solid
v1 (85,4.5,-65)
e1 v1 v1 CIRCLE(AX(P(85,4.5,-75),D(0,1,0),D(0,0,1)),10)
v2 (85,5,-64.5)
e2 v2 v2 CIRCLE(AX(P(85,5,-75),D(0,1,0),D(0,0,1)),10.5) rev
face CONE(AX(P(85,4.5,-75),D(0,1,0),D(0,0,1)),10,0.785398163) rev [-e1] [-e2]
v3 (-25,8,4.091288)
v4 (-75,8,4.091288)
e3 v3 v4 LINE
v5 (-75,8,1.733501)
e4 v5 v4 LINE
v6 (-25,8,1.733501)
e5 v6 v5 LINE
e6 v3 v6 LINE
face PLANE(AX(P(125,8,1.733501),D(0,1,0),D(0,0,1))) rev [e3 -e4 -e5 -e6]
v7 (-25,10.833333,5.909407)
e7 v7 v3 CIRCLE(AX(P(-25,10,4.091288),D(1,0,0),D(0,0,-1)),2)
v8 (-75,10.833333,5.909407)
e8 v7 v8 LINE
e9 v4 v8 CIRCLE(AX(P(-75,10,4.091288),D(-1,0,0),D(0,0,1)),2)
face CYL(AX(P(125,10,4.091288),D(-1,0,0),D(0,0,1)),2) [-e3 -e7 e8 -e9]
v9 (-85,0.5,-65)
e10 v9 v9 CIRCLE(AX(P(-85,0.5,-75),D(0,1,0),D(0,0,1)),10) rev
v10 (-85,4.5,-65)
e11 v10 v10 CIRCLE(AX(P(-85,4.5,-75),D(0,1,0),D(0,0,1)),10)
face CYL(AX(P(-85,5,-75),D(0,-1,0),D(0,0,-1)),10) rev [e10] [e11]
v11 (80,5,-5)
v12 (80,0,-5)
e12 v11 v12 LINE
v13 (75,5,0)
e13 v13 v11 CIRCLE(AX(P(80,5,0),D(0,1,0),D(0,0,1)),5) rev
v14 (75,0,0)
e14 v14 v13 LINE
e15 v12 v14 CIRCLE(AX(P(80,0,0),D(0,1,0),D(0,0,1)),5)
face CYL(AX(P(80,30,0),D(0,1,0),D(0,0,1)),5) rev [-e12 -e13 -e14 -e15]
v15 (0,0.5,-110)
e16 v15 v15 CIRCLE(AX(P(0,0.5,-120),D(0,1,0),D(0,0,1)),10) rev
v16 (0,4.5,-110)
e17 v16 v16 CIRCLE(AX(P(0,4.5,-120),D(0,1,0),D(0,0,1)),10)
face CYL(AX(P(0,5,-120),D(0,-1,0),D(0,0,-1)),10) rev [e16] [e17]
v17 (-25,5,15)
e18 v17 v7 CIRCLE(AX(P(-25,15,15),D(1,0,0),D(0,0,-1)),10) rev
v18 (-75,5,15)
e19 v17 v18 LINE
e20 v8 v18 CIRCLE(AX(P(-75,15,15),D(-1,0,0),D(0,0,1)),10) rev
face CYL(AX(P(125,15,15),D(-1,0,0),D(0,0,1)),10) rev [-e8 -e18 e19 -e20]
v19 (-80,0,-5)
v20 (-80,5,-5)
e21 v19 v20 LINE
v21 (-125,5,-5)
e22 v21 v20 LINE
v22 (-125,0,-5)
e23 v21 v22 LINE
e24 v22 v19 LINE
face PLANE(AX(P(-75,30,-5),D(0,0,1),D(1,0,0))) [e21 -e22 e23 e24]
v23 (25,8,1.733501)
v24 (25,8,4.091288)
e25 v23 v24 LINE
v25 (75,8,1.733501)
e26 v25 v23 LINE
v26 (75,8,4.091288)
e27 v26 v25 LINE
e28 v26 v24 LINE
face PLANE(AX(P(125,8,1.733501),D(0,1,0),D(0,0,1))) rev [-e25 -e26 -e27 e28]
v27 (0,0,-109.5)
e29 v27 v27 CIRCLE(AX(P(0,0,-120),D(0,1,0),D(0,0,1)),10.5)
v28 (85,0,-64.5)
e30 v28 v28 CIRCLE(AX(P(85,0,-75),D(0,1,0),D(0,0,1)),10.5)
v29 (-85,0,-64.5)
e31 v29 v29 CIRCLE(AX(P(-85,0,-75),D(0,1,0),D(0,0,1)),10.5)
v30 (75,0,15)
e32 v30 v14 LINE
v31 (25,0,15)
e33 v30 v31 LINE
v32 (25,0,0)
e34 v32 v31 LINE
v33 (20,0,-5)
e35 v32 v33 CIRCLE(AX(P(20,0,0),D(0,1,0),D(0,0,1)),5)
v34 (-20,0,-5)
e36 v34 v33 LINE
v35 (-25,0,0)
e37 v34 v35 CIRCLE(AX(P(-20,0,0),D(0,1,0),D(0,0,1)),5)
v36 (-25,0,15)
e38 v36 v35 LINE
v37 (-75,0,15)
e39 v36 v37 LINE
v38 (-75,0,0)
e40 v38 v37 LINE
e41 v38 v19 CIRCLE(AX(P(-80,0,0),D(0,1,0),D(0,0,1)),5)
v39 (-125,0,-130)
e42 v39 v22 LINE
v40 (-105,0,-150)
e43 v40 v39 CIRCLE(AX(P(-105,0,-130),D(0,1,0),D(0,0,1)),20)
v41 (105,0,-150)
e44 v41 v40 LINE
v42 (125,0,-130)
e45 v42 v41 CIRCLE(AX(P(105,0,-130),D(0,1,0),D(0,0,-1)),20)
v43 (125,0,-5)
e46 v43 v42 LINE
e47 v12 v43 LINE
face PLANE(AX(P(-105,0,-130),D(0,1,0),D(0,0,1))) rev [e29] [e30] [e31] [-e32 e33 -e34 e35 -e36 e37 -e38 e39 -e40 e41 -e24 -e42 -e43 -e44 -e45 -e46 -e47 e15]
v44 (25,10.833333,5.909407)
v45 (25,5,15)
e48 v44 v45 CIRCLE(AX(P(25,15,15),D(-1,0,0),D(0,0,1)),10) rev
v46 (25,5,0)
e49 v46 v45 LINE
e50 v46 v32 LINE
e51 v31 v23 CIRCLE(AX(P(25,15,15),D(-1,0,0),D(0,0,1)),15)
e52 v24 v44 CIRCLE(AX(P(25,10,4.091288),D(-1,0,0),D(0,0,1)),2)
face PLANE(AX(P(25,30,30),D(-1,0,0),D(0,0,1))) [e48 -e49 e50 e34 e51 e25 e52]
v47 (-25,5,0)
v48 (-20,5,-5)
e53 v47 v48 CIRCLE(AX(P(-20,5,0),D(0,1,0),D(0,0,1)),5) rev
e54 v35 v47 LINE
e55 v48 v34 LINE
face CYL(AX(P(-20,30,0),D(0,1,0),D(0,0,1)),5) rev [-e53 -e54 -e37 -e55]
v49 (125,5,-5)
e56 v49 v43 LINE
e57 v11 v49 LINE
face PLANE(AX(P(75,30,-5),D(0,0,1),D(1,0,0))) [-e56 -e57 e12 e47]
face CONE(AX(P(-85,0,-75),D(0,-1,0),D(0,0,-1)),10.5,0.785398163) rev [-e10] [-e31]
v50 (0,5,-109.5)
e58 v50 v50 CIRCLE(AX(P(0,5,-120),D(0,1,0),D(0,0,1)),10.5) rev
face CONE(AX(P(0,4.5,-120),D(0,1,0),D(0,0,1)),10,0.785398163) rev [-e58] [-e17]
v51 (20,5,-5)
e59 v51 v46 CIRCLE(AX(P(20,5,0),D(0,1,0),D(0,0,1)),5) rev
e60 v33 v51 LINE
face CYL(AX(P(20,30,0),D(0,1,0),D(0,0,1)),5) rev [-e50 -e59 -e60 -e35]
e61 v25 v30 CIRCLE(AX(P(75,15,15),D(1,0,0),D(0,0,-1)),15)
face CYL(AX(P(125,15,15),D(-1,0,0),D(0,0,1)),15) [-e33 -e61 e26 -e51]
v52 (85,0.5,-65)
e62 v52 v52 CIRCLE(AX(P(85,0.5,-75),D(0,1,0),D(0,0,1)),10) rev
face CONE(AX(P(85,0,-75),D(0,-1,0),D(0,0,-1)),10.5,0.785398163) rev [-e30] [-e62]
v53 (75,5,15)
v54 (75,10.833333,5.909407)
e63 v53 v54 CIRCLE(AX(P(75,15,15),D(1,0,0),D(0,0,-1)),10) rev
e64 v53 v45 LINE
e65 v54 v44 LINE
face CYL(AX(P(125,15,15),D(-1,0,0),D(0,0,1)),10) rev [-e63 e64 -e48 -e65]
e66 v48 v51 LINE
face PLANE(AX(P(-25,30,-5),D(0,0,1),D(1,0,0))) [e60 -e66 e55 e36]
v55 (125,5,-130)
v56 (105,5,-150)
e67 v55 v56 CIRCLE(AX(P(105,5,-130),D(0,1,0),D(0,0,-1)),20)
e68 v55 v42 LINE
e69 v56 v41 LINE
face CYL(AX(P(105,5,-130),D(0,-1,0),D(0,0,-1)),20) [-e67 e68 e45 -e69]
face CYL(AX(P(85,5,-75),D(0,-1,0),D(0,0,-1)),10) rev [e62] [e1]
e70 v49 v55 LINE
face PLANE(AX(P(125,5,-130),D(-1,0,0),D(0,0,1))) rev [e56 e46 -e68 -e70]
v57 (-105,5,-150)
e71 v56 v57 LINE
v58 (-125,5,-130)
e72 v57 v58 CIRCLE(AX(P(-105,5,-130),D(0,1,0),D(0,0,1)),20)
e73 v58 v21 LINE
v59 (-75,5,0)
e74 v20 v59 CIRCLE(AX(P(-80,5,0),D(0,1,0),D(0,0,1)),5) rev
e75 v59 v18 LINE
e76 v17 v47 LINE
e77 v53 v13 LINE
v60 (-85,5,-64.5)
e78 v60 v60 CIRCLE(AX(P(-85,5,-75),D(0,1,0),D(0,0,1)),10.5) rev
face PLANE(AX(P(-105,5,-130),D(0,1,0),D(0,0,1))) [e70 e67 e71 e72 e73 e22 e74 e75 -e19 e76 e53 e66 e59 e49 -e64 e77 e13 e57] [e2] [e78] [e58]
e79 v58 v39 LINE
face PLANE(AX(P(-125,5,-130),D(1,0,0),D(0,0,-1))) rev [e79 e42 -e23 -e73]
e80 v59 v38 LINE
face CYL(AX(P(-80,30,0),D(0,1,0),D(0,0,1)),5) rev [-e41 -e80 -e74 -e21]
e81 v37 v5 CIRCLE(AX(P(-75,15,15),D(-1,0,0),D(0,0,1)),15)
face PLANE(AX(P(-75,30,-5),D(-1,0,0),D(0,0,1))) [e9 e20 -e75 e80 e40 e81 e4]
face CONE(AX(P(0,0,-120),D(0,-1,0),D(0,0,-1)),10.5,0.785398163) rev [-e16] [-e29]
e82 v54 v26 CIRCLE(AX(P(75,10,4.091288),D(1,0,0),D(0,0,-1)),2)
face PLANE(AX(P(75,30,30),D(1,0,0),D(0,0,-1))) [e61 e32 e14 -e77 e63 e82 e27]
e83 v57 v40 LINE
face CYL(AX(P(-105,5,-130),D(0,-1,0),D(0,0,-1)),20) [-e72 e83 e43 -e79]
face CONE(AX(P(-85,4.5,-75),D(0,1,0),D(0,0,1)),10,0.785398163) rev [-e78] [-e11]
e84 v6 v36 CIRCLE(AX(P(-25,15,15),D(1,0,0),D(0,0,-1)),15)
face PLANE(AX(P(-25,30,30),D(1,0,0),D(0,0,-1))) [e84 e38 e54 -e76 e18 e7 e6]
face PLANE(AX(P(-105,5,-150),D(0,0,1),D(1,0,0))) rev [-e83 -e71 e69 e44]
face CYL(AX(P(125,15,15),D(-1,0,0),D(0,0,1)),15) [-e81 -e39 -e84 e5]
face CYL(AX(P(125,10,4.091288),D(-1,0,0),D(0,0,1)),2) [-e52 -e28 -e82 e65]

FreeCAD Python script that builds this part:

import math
import FreeCAD as App
import Part
import Sketcher

V = App.Vector
Q = App.Units.Quantity


def edges_at(feature, points):
    """Names of the edges that pass closest to the given points."""
    edges = feature.Shape.Edges
    near = lambda p: min(range(len(edges)), key=lambda i: edges[i].distToShape(Part.Vertex(*p))[0])
    return sorted({f"Edge{near(p) + 1}" for p in points})


def add_polygon(sketch, points):
    """Adds a closed chain of lines whose ends are joined by coincident constraints."""
    first, n = sketch.GeometryCount, len(points)
    for a, b in zip(points, points[1:] + points[:1]):
        sketch.addGeometry(Part.LineSegment(App.Vector(*a, 0), App.Vector(*b, 0)), False)
    for i in range(n):
        sketch.addConstraint(Sketcher.Constraint("Coincident", first + i, 2, first + (i + 1) % n, 1))

doc = App.newDocument("Part")
body = doc.addObject("PartDesign::Body", "Body")

# Sketch on XZ plane
sketch1 = doc.addObject("Sketcher::SketchObject", "Sketch")
body.addObject(sketch1)
sketch1.AttachmentSupport = (doc.XZ_Plane, [""])
sketch1.MapMode = "FlatFace"
sketch1.addGeometry(Part.LineSegment(V(105, -150, 0), V(-105, -150, 0)), False)
sketch1.addGeometry(Part.ArcOfCircle(Part.Circle(V(-105, -130, 0), V(0, 0, 1), 20), math.radians(180), math.radians(270)), False)
sketch1.addGeometry(Part.LineSegment(V(-125, -130, 0), V(-125, 0, 0)), False)
sketch1.addGeometry(Part.LineSegment(V(-125, 0, 0), V(125, 0, 0)), False)
sketch1.addGeometry(Part.LineSegment(V(125, 0, 0), V(125, -130, 0)), False)
sketch1.addGeometry(Part.ArcOfCircle(Part.Circle(V(105, -130, 0), V(0, 0, 1), 20), math.radians(-90), math.radians(0)), False)
sketch1.addGeometry(Part.Circle(V(85, -75, 0), V(0, 0, 1), 10), False)
sketch1.addGeometry(Part.Circle(V(-85, -75, 0), V(0, 0, 1), 10), False)
sketch1.addGeometry(Part.Circle(V(0, -120, 0), V(0, 0, 1), 10), False)
sketch1.addConstraint(Sketcher.Constraint("Tangent", 0, 2, 1, 2))
sketch1.addConstraint(Sketcher.Constraint("Tangent", 1, 1, 2, 1))
sketch1.addConstraint(Sketcher.Constraint("Coincident", 2, 2, 3, 1))
sketch1.addConstraint(Sketcher.Constraint("Coincident", 3, 2, 4, 1))
sketch1.addConstraint(Sketcher.Constraint("Tangent", 4, 2, 5, 2))
sketch1.addConstraint(Sketcher.Constraint("Tangent", 5, 1, 0, 1))
sketch1.addConstraint(Sketcher.Constraint("Horizontal", 0))
sketch1.addConstraint(Sketcher.Constraint("Vertical", 2))
sketch1.addConstraint(Sketcher.Constraint("Horizontal", 3))
sketch1.addConstraint(Sketcher.Constraint("Vertical", 4))
sketch1.addConstraint(Sketcher.Constraint("Equal", 1, 5))
sketch1.addConstraint(Sketcher.Constraint("Equal", 6, 7))
sketch1.addConstraint(Sketcher.Constraint("Equal", 7, 8))
sketch1.addConstraint(Sketcher.Constraint("Symmetric", 2, 2, 3, 2, -1, 1))
sketch1.addConstraint(Sketcher.Constraint("Symmetric", 6, 3, 7, 3, -2))
sketch1.addConstraint(Sketcher.Constraint("PointOnObject", 8, 3, -2))
sketch1.addConstraint(Sketcher.Constraint("Diameter", 6, Q("20 mm")))
sketch1.addConstraint(Sketcher.Constraint("Radius", 1, Q("20 mm")))
sketch1.addConstraint(Sketcher.Constraint("DistanceX", 0, 2, 0, 1, Q("210 mm")))
sketch1.addConstraint(Sketcher.Constraint("DistanceY", 2, 1, 2, 2, Q("130 mm")))
sketch1.addConstraint(Sketcher.Constraint("DistanceX", -1, 1, 6, 3, Q("85 mm")))
sketch1.addConstraint(Sketcher.Constraint("DistanceY", 6, 3, -1, 1, Q("75 mm")))
sketch1.addConstraint(Sketcher.Constraint("DistanceY", 8, 3, -1, 1, Q("120 mm")))
pad1 = doc.addObject("PartDesign::Pad", "Pad")
body.addObject(pad1)
pad1.Profile = sketch1
pad1.Length = 5
pad1.Reversed = True

# Sketch on YZ plane
sketch2 = doc.addObject("Sketcher::SketchObject", "Sketch001")
body.addObject(sketch2)
sketch2.AttachmentSupport = (doc.YZ_Plane, [""])
sketch2.MapMode = "FlatFace"
sketch2.addGeometry(Part.LineSegment(V(0, 15, 0), V(0, 0, 0)), False)
sketch2.addGeometry(Part.LineSegment(V(0, 0, 0), V(5, 0, 0)), False)
sketch2.addGeometry(Part.LineSegment(V(5, 0, 0), V(5, 15, 0)), False)
sketch2.addGeometry(Part.ArcOfCircle(Part.Circle(V(15, 15, 0), V(0, 0, 1), 10), math.radians(-115), math.radians(180)), False)
sketch2.addGeometry(Part.ArcOfCircle(Part.Circle(V(10, 4.1, 0), V(0, 0, 1), 2), math.radians(65), math.radians(180)), False)
sketch2.addGeometry(Part.LineSegment(V(8, 4.1, 0), V(8, 1.7, 0)), False)
sketch2.addGeometry(Part.ArcOfCircle(Part.Circle(V(15, 15, 0), V(0, 0, 1), 15), math.radians(-118), math.radians(180)), False)
sketch2.addConstraint(Sketcher.Constraint("Coincident", 0, 2, 1, 1))
sketch2.addConstraint(Sketcher.Constraint("Coincident", 1, 2, 2, 1))
sketch2.addConstraint(Sketcher.Constraint("Tangent", 2, 2, 3, 2))
sketch2.addConstraint(Sketcher.Constraint("Tangent", 3, 1, 4, 1))
sketch2.addConstraint(Sketcher.Constraint("Tangent", 4, 2, 5, 1))
sketch2.addConstraint(Sketcher.Constraint("Coincident", 5, 2, 6, 1))
sketch2.addConstraint(Sketcher.Constraint("Tangent", 6, 2, 0, 1))
sketch2.addConstraint(Sketcher.Constraint("Vertical", 0))
sketch2.addConstraint(Sketcher.Constraint("Horizontal", 1))
sketch2.addConstraint(Sketcher.Constraint("Vertical", 2))
sketch2.addConstraint(Sketcher.Constraint("Vertical", 5))
sketch2.addConstraint(Sketcher.Constraint("Coincident", 0, 2, -1, 1))
sketch2.addConstraint(Sketcher.Constraint("Coincident", 6, 3, 3, 3))
sketch2.addConstraint(Sketcher.Constraint("Radius", 3, Q("10 mm")))
sketch2.addConstraint(Sketcher.Constraint("Radius", 4, Q("2 mm")))
sketch2.addConstraint(Sketcher.Constraint("Radius", 6, Q("15 mm")))
sketch2.addConstraint(Sketcher.Constraint("DistanceY", 0, 2, 0, 1, Q("15 mm")))
sketch2.addConstraint(Sketcher.Constraint("DistanceX", -1, 1, 4, 3, Q("10 mm")))
pad2 = doc.addObject("PartDesign::Pad", "Pad001")
body.addObject(pad2)
pad2.Profile = sketch2
pad2.Length = 250
pad2.Midplane = True

# Sketch on XZ plane
sketch3 = doc.addObject("Sketcher::SketchObject", "Sketch002")
body.addObject(sketch3)
sketch3.AttachmentSupport = (doc.XZ_Plane, [""])
sketch3.MapMode = "FlatFace"
add_polygon(sketch3, [(-125, -5), (-125, 30), (-75, 30), (-75, -5)])  # lines 0-3
add_polygon(sketch3, [(-25, -5), (-25, 30), (25, 30), (25, -5)])  # lines 4-7
add_polygon(sketch3, [(75, -5), (75, 30), (125, 30), (125, -5)])  # lines 8-11
sketch3.addConstraint(Sketcher.Constraint("Vertical", 0))
sketch3.addConstraint(Sketcher.Constraint("Horizontal", 1))
sketch3.addConstraint(Sketcher.Constraint("Vertical", 2))
sketch3.addConstraint(Sketcher.Constraint("Horizontal", 3))
sketch3.addConstraint(Sketcher.Constraint("Vertical", 4))
sketch3.addConstraint(Sketcher.Constraint("Horizontal", 5))
sketch3.addConstraint(Sketcher.Constraint("Vertical", 6))
sketch3.addConstraint(Sketcher.Constraint("Horizontal", 7))
sketch3.addConstraint(Sketcher.Constraint("Vertical", 8))
sketch3.addConstraint(Sketcher.Constraint("Horizontal", 9))
sketch3.addConstraint(Sketcher.Constraint("Vertical", 10))
sketch3.addConstraint(Sketcher.Constraint("Horizontal", 11))
sketch3.addConstraint(Sketcher.Constraint("Symmetric", 1, 2, 8, 2, -2))
sketch3.addConstraint(Sketcher.Constraint("Symmetric", 3, 2, 10, 2, -2))
sketch3.addConstraint(Sketcher.Constraint("Horizontal", 1, 2, 4, 2))
sketch3.addConstraint(Sketcher.Constraint("Horizontal", 3, 2, 6, 2))
sketch3.addConstraint(Sketcher.Constraint("Equal", 3, 5))
sketch3.addConstraint(Sketcher.Constraint("DistanceX", 1, 1, 1, 2, Q("50 mm")))
sketch3.addConstraint(Sketcher.Constraint("DistanceY", 0, 1, 0, 2, Q("35 mm")))
sketch3.addConstraint(Sketcher.Constraint("DistanceX", 0, 2, -1, 1, Q("125 mm")))
sketch3.addConstraint(Sketcher.Constraint("DistanceY", -1, 1, 0, 2, Q("30 mm")))
sketch3.addConstraint(Sketcher.Constraint("DistanceX", 4, 2, -1, 1, Q("25 mm")))
pocket1 = doc.addObject("PartDesign::Pocket", "Pocket")
body.addObject(pocket1)
pocket1.Profile = sketch3
pocket1.Length = 60
pocket1.Midplane = True
doc.recompute()

fillet = doc.addObject("PartDesign::Fillet", "Fillet")
body.addObject(fillet)
fillet.Base = (pocket1, edges_at(pocket1, [
    (75, 2.5, -5),
    (-75, 2.5, -5),
    (25, 2.5, -5),
    (-25, 2.5, -5),
]))
fillet.Radius = 5
doc.recompute()

chamfer = doc.addObject("PartDesign::Chamfer", "Chamfer")
body.addObject(chamfer)
chamfer.Base = (fillet, edges_at(fillet, [
    (-85, 0, -85),
    (-85, 5, -85),
    (85, 0, -85),
    (85, 5, -85),
    (0, 0, -130),
    (0, 5, -130),
]))
chamfer.Size = 0.5

doc.recompute()
